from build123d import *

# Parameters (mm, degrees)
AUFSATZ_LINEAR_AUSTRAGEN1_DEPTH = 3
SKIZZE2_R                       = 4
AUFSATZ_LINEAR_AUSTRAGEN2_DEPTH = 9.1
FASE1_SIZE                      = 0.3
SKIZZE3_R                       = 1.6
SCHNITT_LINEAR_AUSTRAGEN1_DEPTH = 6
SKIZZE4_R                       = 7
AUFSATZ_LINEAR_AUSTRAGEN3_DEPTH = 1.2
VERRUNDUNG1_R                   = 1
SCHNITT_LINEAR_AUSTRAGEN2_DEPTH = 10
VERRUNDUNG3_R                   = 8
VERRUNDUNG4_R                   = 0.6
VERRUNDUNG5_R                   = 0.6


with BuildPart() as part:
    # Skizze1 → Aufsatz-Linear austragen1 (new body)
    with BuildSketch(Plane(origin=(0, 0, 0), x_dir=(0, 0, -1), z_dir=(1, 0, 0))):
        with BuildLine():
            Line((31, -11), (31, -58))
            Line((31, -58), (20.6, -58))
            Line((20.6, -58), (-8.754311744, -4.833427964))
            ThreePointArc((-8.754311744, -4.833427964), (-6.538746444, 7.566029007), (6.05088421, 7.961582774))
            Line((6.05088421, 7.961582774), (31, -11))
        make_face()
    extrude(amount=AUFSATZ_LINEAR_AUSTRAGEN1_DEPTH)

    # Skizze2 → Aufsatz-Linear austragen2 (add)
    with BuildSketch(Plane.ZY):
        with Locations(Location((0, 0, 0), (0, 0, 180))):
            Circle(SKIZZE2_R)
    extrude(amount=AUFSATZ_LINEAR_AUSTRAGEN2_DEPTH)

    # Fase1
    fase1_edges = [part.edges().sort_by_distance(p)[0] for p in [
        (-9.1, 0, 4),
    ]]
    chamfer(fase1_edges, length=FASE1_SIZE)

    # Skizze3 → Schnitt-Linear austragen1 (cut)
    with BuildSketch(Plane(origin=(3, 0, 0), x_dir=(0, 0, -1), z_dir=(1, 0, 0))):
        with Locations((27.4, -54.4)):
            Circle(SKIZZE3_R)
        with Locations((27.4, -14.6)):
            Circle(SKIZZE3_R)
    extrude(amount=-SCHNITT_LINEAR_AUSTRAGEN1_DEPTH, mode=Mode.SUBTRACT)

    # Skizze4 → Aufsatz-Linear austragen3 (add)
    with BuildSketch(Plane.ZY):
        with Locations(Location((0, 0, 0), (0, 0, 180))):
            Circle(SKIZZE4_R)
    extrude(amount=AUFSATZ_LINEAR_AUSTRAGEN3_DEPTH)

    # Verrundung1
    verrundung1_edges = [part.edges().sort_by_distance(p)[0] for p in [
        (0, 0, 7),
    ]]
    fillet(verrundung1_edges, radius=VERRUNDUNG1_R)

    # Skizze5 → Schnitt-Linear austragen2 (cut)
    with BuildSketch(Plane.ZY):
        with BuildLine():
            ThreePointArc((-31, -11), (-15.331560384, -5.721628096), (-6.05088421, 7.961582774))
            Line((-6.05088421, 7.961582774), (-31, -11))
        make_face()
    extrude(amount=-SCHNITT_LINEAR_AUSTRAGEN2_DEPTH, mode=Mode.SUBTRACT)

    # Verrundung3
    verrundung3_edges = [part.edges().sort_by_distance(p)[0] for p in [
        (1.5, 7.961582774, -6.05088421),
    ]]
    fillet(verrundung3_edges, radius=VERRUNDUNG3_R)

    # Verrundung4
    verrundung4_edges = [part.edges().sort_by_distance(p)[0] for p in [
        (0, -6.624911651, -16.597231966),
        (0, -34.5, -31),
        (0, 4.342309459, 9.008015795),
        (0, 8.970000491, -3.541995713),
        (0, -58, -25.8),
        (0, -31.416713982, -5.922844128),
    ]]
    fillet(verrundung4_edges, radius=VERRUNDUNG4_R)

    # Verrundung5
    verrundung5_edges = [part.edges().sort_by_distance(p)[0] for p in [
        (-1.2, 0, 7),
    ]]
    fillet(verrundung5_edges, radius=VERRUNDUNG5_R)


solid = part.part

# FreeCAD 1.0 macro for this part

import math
import FreeCAD as App
import Part
import Sketcher

V = App.Vector


def edges_at(feature, points):
    """Names of the edges that pass closest to the given points."""
    edges = feature.Shape.Edges
    near = lambda p: min(range(len(edges)), key=lambda i: edges[i].distToShape(Part.Vertex(*p))[0])
    return sorted({f"Edge{near(p) + 1}" for p in points})

doc = App.newDocument("Part")
body = doc.addObject("PartDesign::Body", "Body")

sketch1 = doc.addObject("Sketcher::SketchObject", "Sketch")
body.addObject(sketch1)
sketch1.AttachmentSupport = (doc.YZ_Plane, [""])
sketch1.MapMode = "FlatFace"
sketch1.addGeometry([
    Part.LineSegment(V(-58, -31, 0), V(-11, -31, 0)),
    Part.LineSegment(V(-11, -31, 0), V(8, -6, 0)),
    Part.ArcOfCircle(Part.Circle(V(0, 0, 0), V(0, 0, 1), 10), math.radians(-37), math.radians(119)),
    Part.LineSegment(V(-5, 9, 0), V(-58, -21, 0)),
    Part.LineSegment(V(-58, -21, 0), V(-58, -31, 0)),
], False)
sketch1.addConstraint([
    Sketcher.Constraint("Coincident", 0, 2, 1, 1),
    Sketcher.Constraint("Tangent", 1, 2, 2, 1),
    Sketcher.Constraint("Tangent", 2, 2, 3, 1),
    Sketcher.Constraint("Coincident", 3, 2, 4, 1),
    Sketcher.Constraint("Coincident", 4, 2, 0, 1),
    Sketcher.Constraint("Horizontal", 0),
    Sketcher.Constraint("Vertical", 4),
    Sketcher.Constraint("Coincident", 2, 3, -1, 1),
    Sketcher.Constraint("Radius", 2, 10.0),
    Sketcher.Constraint("DistanceX", 0, 1, 0, 2, 47.0),
    Sketcher.Constraint("DistanceY", 4, 2, 4, 1, 10.4),
    Sketcher.Constraint("DistanceX", 0, 2, -1, 1, 11.0),
    Sketcher.Constraint("DistanceY", 0, 2, -1, 1, 31.0),
])
pad1 = doc.addObject("PartDesign::Pad", "Pad")
body.addObject(pad1)
pad1.Profile = sketch1
pad1.Length = 3

sketch2 = doc.addObject("Sketcher::SketchObject", "Sketch001")
body.addObject(sketch2)
sketch2.AttachmentSupport = (doc.YZ_Plane, [""])
sketch2.MapMode = "FlatFace"
sketch2.addGeometry(Part.Circle(V(0, 0, 0), V(0, 0, 1), 4), False)
sketch2.addConstraint([
    Sketcher.Constraint("Coincident", 0, 3, -1, 1),
    Sketcher.Constraint("Diameter", 0, 8.0),
])
pad2 = doc.addObject("PartDesign::Pad", "Pad001")
body.addObject(pad2)
pad2.Profile = sketch2
pad2.Length = 9.1
pad2.Reversed = True
doc.recompute()

chamfer = doc.addObject("PartDesign::Chamfer", "Chamfer")
body.addObject(chamfer)
chamfer.Base = (pad2, edges_at(pad2, [(-9.1, 0, 4)]))
chamfer.Size = 0.3

sketch3 = doc.addObject("Sketcher::SketchObject", "Sketch002")
body.addObject(sketch3)
sketch3.AttachmentSupport = (doc.YZ_Plane, [""])
sketch3.MapMode = "FlatFace"
sketch3.AttachmentOffset = App.Placement(V(0, 0, 3), App.Rotation())
sketch3.addGeometry([
    Part.Circle(V(-54.4, -27.4, 0), V(0, 0, 1), 1.6),
    Part.Circle(V(-14.6, -27.4, 0), V(0, 0, 1), 1.6),
], False)
sketch3.addConstraint([
    Sketcher.Constraint("Equal", 0, 1),
    Sketcher.Constraint("Horizontal", 0, 3, 1, 3),
    Sketcher.Constraint("Diameter", 0, 3.2),
    Sketcher.Constraint("DistanceX", 0, 3, -1, 1, 54.4),
    Sketcher.Constraint("DistanceY", 0, 3, -1, 1, 27.4),
    Sketcher.Constraint("DistanceX", 1, 3, -1, 1, 14.6),
])
pocket1 = doc.addObject("PartDesign::Pocket", "Pocket")
body.addObject(pocket1)
pocket1.Profile = sketch3
pocket1.Length = 6

sketch4 = doc.addObject("Sketcher::SketchObject", "Sketch003")
body.addObject(sketch4)
sketch4.AttachmentSupport = (doc.YZ_Plane, [""])
sketch4.MapMode = "FlatFace"
sketch4.addGeometry(Part.Circle(V(0, 0, 0), V(0, 0, 1), 7), False)
sketch4.addConstraint([
    Sketcher.Constraint("Coincident", 0, 3, -1, 1),
    Sketcher.Constraint("Diameter", 0, 14.0),
])
pad3 = doc.addObject("PartDesign::Pad", "Pad002")
body.addObject(pad3)
pad3.Profile = sketch4
pad3.Length = 1.2
pad3.Reversed = True
doc.recompute()

fillet = doc.addObject("PartDesign::Fillet", "Fillet")
body.addObject(fillet)
fillet.Base = (pad3, edges_at(pad3, [(0, 0, 7)]))
fillet.Radius = 1

sketch5 = doc.addObject("Sketcher::SketchObject", "Sketch004")
body.addObject(sketch5)
sketch5.AttachmentSupport = (doc.YZ_Plane, [""])
sketch5.MapMode = "FlatFace"
sketch5.addGeometry([
    Part.ArcOfCircle(Part.Circle(V(15, -31, 0), V(0, 0, 1), 26), math.radians(106), math.radians(180)),
    Part.LineSegment(V(8, -6, 0), V(-11, -31, 0)),
], False)
sketch5.addConstraint([
    Sketcher.Constraint("Coincident", 0, 1, 1, 1),
    Sketcher.Constraint("Coincident", 1, 2, 0, 2),
    Sketcher.Constraint("Horizontal", 0, 3, 1, 2),
    Sketcher.Constraint("DistanceY", 0, 3, -1, 1, 31.0),
    Sketcher.Constraint("DistanceX", 1, 2, -1, 1, 11.0),
    Sketcher.Constraint("Radius", 0, 25.894463),
    Sketcher.Constraint("Distance", 1, 31.336879),
])
pocket2 = doc.addObject("PartDesign::Pocket", "Pocket001")
body.addObject(pocket2)
pocket2.Profile = sketch5
pocket2.Length = 10
pocket2.Reversed = True
doc.recompute()

fillet2 = doc.addObject("PartDesign::Fillet", "Fillet001")
body.addObject(fillet2)
fillet2.Base = (pocket2, edges_at(pocket2, [(1.5, 7.962, -6.051)]))
fillet2.Radius = 8
doc.recompute()

fillet3 = doc.addObject("PartDesign::Fillet", "Fillet002")
body.addObject(fillet3)
fillet3.Base = (fillet2, edges_at(fillet2, [
    (0, -6.625, -16.597),
    (0, -34.5, -31),
    (0, 4.342, 9.008),
    (0, 8.97, -3.542),
    (0, -58, -25.8),
    (0, -31.417, -5.923),
]))
fillet3.Radius = 0.6
doc.recompute()

fillet4 = doc.addObject("PartDesign::Fillet", "Fillet003")
body.addObject(fillet4)
fillet4.Base = (fillet3, edges_at(fillet3, [(-1.2, 0, 7)]))
fillet4.Radius = 0.6

doc.recompute()
